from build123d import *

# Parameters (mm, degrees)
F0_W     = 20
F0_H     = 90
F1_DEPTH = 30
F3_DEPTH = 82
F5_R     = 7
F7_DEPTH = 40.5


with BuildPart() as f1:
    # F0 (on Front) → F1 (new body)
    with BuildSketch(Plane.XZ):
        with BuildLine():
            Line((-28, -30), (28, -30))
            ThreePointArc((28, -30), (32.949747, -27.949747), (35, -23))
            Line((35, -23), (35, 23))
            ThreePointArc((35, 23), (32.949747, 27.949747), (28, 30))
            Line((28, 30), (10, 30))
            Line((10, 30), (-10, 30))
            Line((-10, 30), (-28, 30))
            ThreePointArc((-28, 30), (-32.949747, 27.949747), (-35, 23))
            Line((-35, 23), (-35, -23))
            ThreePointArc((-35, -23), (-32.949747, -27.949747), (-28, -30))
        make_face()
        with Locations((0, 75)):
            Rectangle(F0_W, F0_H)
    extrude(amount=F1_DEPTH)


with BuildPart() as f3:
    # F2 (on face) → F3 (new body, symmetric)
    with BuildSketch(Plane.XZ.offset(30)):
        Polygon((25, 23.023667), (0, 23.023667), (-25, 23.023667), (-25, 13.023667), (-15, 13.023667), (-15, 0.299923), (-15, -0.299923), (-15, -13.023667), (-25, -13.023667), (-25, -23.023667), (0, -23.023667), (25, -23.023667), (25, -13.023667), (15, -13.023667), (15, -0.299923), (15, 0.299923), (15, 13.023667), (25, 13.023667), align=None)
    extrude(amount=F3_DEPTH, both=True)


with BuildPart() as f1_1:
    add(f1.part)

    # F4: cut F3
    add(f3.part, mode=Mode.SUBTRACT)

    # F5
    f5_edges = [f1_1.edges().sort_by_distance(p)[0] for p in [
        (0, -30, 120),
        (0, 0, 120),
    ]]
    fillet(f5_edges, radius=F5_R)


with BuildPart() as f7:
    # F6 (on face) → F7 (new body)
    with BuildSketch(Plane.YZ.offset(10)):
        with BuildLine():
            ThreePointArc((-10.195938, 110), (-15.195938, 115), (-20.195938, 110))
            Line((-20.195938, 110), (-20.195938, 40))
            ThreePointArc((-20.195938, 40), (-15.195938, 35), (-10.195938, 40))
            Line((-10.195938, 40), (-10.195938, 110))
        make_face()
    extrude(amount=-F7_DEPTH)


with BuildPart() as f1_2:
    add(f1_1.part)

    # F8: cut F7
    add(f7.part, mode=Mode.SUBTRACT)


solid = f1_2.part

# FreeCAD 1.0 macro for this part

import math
import FreeCAD as App
import Part
import Sketcher


def edges_at(feature, points):
    """Names of the edges that pass closest to the given points."""
    edges = feature.Shape.Edges
    near = lambda p: min(range(len(edges)), key=lambda i: edges[i].distToShape(Part.Vertex(*p))[0])
    return sorted({f"Edge{near(p) + 1}" for p in points})


def add_polygon(sketch, points):
    """Adds a closed chain of lines whose ends are joined by coincident constraints."""
    first, n = sketch.GeometryCount, len(points)
    for a, b in zip(points, points[1:] + points[:1]):
        sketch.addGeometry(Part.LineSegment(App.Vector(*a, 0), App.Vector(*b, 0)), False)
    for i in range(n):
        sketch.addConstraint(Sketcher.Constraint("Coincident", first + i, 2, first + (i + 1) % n, 1))

doc = App.newDocument("Part")
params = doc.addObject("Spreadsheet::Sheet", "Params")
for row, (alias, value) in enumerate([
    ("sketch1_radius", "7.000002 mm"),
    ("sketch1_width", "56 mm"),
    ("sketch1_width2", "18 mm"),
    ("sketch1_height", "46 mm"),
    ("sketch1_height2", "90 mm"),
    ("pad1_length", "30 mm"),
    ("sketch2_width", "50 mm"),
    ("sketch2_width2", "10 mm"),
    ("pad2_length", "164 mm"),
    ("fillet_radius", "7 mm"),
    ("sketch3_radius", "5 mm"),
    ("sketch3_height", "70 mm"),
    ("pad3_length", "40.5 mm"),
], start=1):
    params.set(f"A{row}", alias)
    params.set(f"B{row}", "=" + value)
    params.setAlias(f"B{row}", alias)

body = doc.addObject("PartDesign::Body", "Body")

# Sketch on XZ plane
sketch1 = body.newObject("Sketcher::SketchObject", "Sketch")
sketch1.AttachmentSupport = (doc.getObject("XZ_Plane"), [""])
sketch1.MapMode = "FlatFace"
sketch1.addGeometry([
    Part.LineSegment(App.Vector(-28, -30, 0), App.Vector(28, -30, 0)),  # 0
    Part.ArcOfCircle(Part.Circle(App.Vector(28, -23, 0), App.Vector(0, 0, 1), 7), math.radians(-90), math.radians(0)),  # 1
    Part.LineSegment(App.Vector(35, -23, 0), App.Vector(35, 23, 0)),  # 2
    Part.ArcOfCircle(Part.Circle(App.Vector(28, 23, 0), App.Vector(0, 0, 1), 7), math.radians(0), math.radians(90)),  # 3
    Part.LineSegment(App.Vector(28, 30, 0), App.Vector(10, 30, 0)),  # 4
    Part.LineSegment(App.Vector(10, 30, 0), App.Vector(10, 120, 0)),  # 5
    Part.LineSegment(App.Vector(10, 120, 0), App.Vector(-10, 120, 0)),  # 6
    Part.LineSegment(App.Vector(-10, 120, 0), App.Vector(-10, 30, 0)),  # 7
    Part.LineSegment(App.Vector(-10, 30, 0), App.Vector(-28, 30, 0)),  # 8
    Part.ArcOfCircle(Part.Circle(App.Vector(-28, 23, 0), App.Vector(0, 0, 1), 7), math.radians(90), math.radians(180)),  # 9
    Part.LineSegment(App.Vector(-35, 23, 0), App.Vector(-35, -23, 0)),  # 10
    Part.ArcOfCircle(Part.Circle(App.Vector(-28, -23, 0), App.Vector(0, 0, 1), 7), math.radians(-180), math.radians(-90)),  # 11
], False)
sketch1.addConstraint([
    Sketcher.Constraint("Tangent", 0, 2, 1, 1),
    Sketcher.Constraint("Tangent", 1, 2, 2, 1),
    Sketcher.Constraint("Tangent", 2, 2, 3, 1),
    Sketcher.Constraint("Tangent", 3, 2, 4, 1),
    Sketcher.Constraint("Coincident", 4, 2, 5, 1),
    Sketcher.Constraint("Coincident", 5, 2, 6, 1),
    Sketcher.Constraint("Coincident", 6, 2, 7, 1),
    Sketcher.Constraint("Coincident", 7, 2, 8, 1),
    Sketcher.Constraint("Tangent", 8, 2, 9, 1),
    Sketcher.Constraint("Tangent", 9, 2, 10, 1),
    Sketcher.Constraint("Tangent", 10, 2, 11, 1),
    Sketcher.Constraint("Tangent", 11, 2, 0, 1),
    Sketcher.Constraint("Horizontal", 0),
    Sketcher.Constraint("Vertical", 2),
    Sketcher.Constraint("Horizontal", 4),
    Sketcher.Constraint("Vertical", 5),
    Sketcher.Constraint("Horizontal", 6),
    Sketcher.Constraint("Vertical", 7),
    Sketcher.Constraint("Horizontal", 8),
    Sketcher.Constraint("Vertical", 10),
    Sketcher.Constraint("Equal", 1, 3),
    Sketcher.Constraint("Equal", 3, 9),
    Sketcher.Constraint("Equal", 9, 11),
    Sketcher.Constraint("Symmetric", 1, 3, 9, 3, -1, 1),
    Sketcher.Constraint("Symmetric", 4, 2, 7, 2, -2),
    Sketcher.Constraint("Radius", 1, 7.000002),
    Sketcher.Constraint("DistanceX", 0, 1, 0, 2, 56.0),
    Sketcher.Constraint("DistanceX", 4, 2, 4, 1, 18.0),
    Sketcher.Constraint("DistanceY", 2, 1, 2, 2, 46.0),
    Sketcher.Constraint("DistanceY", 5, 1, 5, 2, 90.0),
])
sketch1.setExpression("Constraints[25]", "Params.sketch1_radius")
sketch1.setExpression("Constraints[26]", "Params.sketch1_width")
sketch1.setExpression("Constraints[27]", "Params.sketch1_width2")
sketch1.setExpression("Constraints[28]", "Params.sketch1_height")
sketch1.setExpression("Constraints[29]", "Params.sketch1_height2")
pad1 = body.newObject("PartDesign::Pad", "Pad")
pad1.Profile = sketch1
pad1.setExpression("Length", "Params.pad1_length")
body2 = doc.addObject("PartDesign::Body", "Body001")

# Sketch on XZ plane
sketch2 = body2.newObject("Sketcher::SketchObject", "Sketch001")
sketch2.AttachmentSupport = (doc.getObject("XZ_Plane001"), [""])
sketch2.MapMode = "FlatFace"
sketch2.AttachmentOffset = App.Placement(App.Vector(0, 0, 30), App.Rotation())
add_polygon(sketch2, [(25, 23), (-25, 23), (-25, 13), (-15, 13), (-15, -13), (-25, -13), (-25, -23), (25, -23), (25, -13), (15, -13), (15, 13), (25, 13)])  # lines 0-11
sketch2.addConstraint([
    Sketcher.Constraint("Horizontal", 0),
    Sketcher.Constraint("Vertical", 1),
    Sketcher.Constraint("Horizontal", 2),
    Sketcher.Constraint("Vertical", 3),
    Sketcher.Constraint("Horizontal", 4),
    Sketcher.Constraint("Vertical", 5),
    Sketcher.Constraint("Horizontal", 6),
    Sketcher.Constraint("Vertical", 7),
    Sketcher.Constraint("Horizontal", 8),
    Sketcher.Constraint("Vertical", 9),
    Sketcher.Constraint("Horizontal", 10),
    Sketcher.Constraint("Vertical", 11),
    Sketcher.Constraint("Symmetric", 0, 2, 6, 2, -1, 1),
    Sketcher.Constraint("Symmetric", 2, 2, 8, 2, -1, 1),
    Sketcher.Constraint("Symmetric", 4, 2, 10, 2, -1, 1),
    Sketcher.Constraint("Symmetric", 4, 2, 7, 2, -2),
    Sketcher.Constraint("Equal", 10, 1),
    Sketcher.Constraint("DistanceX", 0, 2, 0, 1, 50.0),
    Sketcher.Constraint("DistanceX", 2, 1, 2, 2, 10.0),
    Sketcher.Constraint("DistanceY", 3, 2, 3, 1, 26.047334),
])
sketch2.setExpression("Constraints[29]", "Params.sketch2_width")
sketch2.setExpression("Constraints[30]", "Params.sketch2_width2")
pad2 = body2.newObject("PartDesign::Pad", "Pad001")
pad2.Profile = sketch2
pad2.setExpression("Length", "Params.pad2_length")
pad2.Midplane = True
doc.recompute()

boolean = body.newObject("PartDesign::Boolean", "Boolean")
boolean.Type = "Cut"
boolean.addObjects([body2])
doc.recompute()

fillet = body.newObject("PartDesign::Fillet", "Fillet")
fillet.Base = (boolean, edges_at(boolean, [(0, -30, 120), (0, 0, 120)]))
fillet.setExpression("Radius", "Params.fillet_radius")
body3 = doc.addObject("PartDesign::Body", "Body002")

# Sketch on YZ plane
sketch3 = body3.newObject("Sketcher::SketchObject", "Sketch002")
sketch3.AttachmentSupport = (doc.getObject("YZ_Plane002"), [""])
sketch3.MapMode = "FlatFace"
sketch3.AttachmentOffset = App.Placement(App.Vector(0, 0, 10), App.Rotation())
sketch3.addGeometry([
    Part.ArcOfCircle(Part.Circle(App.Vector(-15, 110, 0), App.Vector(0, 0, 1), 5), math.radians(0), math.radians(180)),
    Part.LineSegment(App.Vector(-20, 110, 0), App.Vector(-20, 40, 0)),
    Part.ArcOfCircle(Part.Circle(App.Vector(-15, 40, 0), App.Vector(0, 0, 1), 5), math.radians(180), math.radians(360)),
    Part.LineSegment(App.Vector(-10, 40, 0), App.Vector(-10, 110, 0)),
], False)
sketch3.addConstraint([
    Sketcher.Constraint("Tangent", 0, 2, 1, 1),
    Sketcher.Constraint("Tangent", 1, 2, 2, 1),
    Sketcher.Constraint("Tangent", 2, 2, 3, 1),
    Sketcher.Constraint("Tangent", 3, 2, 0, 1),
    Sketcher.Constraint("Vertical", 1),
    Sketcher.Constraint("Vertical", 3),
    Sketcher.Constraint("Radius", 0, 5.0),
    Sketcher.Constraint("DistanceY", 1, 2, 1, 1, 70.0),
    Sketcher.Constraint("DistanceY", -1, 1, 0, 3, 110.0),
    Sketcher.Constraint("DistanceX", 1, 2, -1, 1, 20.195938),
])
sketch3.setExpression("Constraints[6]", "Params.sketch3_radius")
sketch3.setExpression("Constraints[7]", "Params.sketch3_height")
pad3 = body3.newObject("PartDesign::Pad", "Pad002")
pad3.Profile = sketch3
pad3.setExpression("Length", "Params.pad3_length")
pad3.Reversed = True
doc.recompute()

boolean2 = body.newObject("PartDesign::Boolean", "Boolean001")
boolean2.Type = "Cut"
boolean2.addObjects([body3])

doc.recompute()
